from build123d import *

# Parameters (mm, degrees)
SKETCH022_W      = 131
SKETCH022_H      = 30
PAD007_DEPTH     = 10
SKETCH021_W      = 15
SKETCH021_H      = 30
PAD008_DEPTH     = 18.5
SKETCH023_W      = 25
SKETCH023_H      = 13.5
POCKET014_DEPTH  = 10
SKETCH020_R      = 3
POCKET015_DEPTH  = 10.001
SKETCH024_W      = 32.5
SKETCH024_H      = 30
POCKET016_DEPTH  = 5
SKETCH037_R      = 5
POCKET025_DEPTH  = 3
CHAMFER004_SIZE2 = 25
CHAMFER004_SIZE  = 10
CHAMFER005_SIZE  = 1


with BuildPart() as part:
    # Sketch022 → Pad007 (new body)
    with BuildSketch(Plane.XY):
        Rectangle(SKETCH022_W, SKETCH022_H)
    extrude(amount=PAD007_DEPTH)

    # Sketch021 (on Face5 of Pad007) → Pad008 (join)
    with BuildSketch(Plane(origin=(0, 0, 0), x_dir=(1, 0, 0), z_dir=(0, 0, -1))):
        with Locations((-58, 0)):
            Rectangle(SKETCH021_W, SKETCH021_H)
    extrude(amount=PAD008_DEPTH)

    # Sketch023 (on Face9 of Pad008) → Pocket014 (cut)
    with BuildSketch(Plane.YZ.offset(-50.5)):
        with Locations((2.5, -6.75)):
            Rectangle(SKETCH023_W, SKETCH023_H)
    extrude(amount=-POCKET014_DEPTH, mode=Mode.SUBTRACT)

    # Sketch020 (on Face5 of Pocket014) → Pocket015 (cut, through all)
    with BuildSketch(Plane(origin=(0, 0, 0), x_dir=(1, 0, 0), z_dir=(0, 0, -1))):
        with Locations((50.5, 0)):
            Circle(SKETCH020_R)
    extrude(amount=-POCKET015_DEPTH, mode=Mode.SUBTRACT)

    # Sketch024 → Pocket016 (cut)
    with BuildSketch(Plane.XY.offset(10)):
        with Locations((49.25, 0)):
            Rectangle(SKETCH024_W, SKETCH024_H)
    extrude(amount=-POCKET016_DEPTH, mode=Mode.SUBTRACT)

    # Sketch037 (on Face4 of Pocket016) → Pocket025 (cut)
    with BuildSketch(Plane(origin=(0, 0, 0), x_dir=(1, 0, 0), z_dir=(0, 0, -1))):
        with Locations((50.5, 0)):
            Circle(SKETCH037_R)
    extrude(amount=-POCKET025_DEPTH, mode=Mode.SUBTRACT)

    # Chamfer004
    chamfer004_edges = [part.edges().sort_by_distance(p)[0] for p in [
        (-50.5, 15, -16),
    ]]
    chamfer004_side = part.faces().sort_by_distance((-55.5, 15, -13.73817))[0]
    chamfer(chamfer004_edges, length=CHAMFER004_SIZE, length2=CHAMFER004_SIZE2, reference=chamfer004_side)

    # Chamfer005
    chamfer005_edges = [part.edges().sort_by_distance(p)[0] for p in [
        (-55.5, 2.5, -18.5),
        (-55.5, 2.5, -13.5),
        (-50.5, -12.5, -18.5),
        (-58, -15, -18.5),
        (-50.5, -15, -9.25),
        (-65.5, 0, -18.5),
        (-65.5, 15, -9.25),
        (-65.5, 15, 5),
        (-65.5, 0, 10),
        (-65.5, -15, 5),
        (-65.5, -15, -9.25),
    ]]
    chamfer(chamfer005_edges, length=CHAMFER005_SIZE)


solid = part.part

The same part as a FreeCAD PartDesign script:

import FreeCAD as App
import Part
import Sketcher

V = App.Vector


def edges_at(feature, points):
    """Names of the edges that pass closest to the given points."""
    edges = feature.Shape.Edges
    near = lambda p: min(range(len(edges)), key=lambda i: edges[i].distToShape(Part.Vertex(*p))[0])
    return sorted({f"Edge{near(p) + 1}" for p in points})

doc = App.newDocument("Part")
body = doc.addObject("PartDesign::Body", "Body")

# Sketch on XY plane
sketch1 = body.newObject("Sketcher::SketchObject", "Sketch")
sketch1.AttachmentSupport = (doc.getObject("XY_Plane"), [""])
sketch1.MapMode = "FlatFace"
sketch1.addGeometry(Part.LineSegment(V(-66, 15, 0), V(-66, -15, 0)), False)
sketch1.addGeometry(Part.LineSegment(V(-66, -15, 0), V(66, -15, 0)), False)
sketch1.addGeometry(Part.LineSegment(V(66, -15, 0), V(66, 15, 0)), False)
sketch1.addGeometry(Part.LineSegment(V(66, 15, 0), V(-66, 15, 0)), False)
sketch1.addConstraint(Sketcher.Constraint("Coincident", 0, 2, 1, 1))
sketch1.addConstraint(Sketcher.Constraint("Coincident", 1, 2, 2, 1))
sketch1.addConstraint(Sketcher.Constraint("Coincident", 2, 2, 3, 1))
sketch1.addConstraint(Sketcher.Constraint("Coincident", 3, 2, 0, 1))
sketch1.addConstraint(Sketcher.Constraint("Vertical", 0))
sketch1.addConstraint(Sketcher.Constraint("Horizontal", 1))
sketch1.addConstraint(Sketcher.Constraint("Vertical", 2))
sketch1.addConstraint(Sketcher.Constraint("Horizontal", 3))
sketch1.addConstraint(Sketcher.Constraint("Symmetric", 0, 2, 2, 2, -1, 1))
sketch1.addConstraint(Sketcher.Constraint("DistanceX", 1, 1, 1, 2, 131.0))
sketch1.addConstraint(Sketcher.Constraint("DistanceY", 0, 2, 0, 1, 30.0))
pad1 = body.newObject("PartDesign::Pad", "Pad")
pad1.Profile = sketch1
pad1.Length = 10

# Sketch on XY plane
sketch2 = body.newObject("Sketcher::SketchObject", "Sketch001")
sketch2.AttachmentSupport = (doc.getObject("XY_Plane"), [""])
sketch2.MapMode = "FlatFace"
sketch2.addGeometry(Part.LineSegment(V(-66, -15, 0), V(-66, 15, 0)), False)
sketch2.addGeometry(Part.LineSegment(V(-66, 15, 0), V(-50, 15, 0)), False)
sketch2.addGeometry(Part.LineSegment(V(-50, 15, 0), V(-50, -15, 0)), False)
sketch2.addGeometry(Part.LineSegment(V(-50, -15, 0), V(-66, -15, 0)), False)
sketch2.addConstraint(Sketcher.Constraint("Coincident", 0, 2, 1, 1))
sketch2.addConstraint(Sketcher.Constraint("Coincident", 1, 2, 2, 1))
sketch2.addConstraint(Sketcher.Constraint("Coincident", 2, 2, 3, 1))
sketch2.addConstraint(Sketcher.Constraint("Coincident", 3, 2, 0, 1))
sketch2.addConstraint(Sketcher.Constraint("Vertical", 0))
sketch2.addConstraint(Sketcher.Constraint("Horizontal", 1))
sketch2.addConstraint(Sketcher.Constraint("Vertical", 2))
sketch2.addConstraint(Sketcher.Constraint("Horizontal", 3))
sketch2.addConstraint(Sketcher.Constraint("DistanceX", 1, 1, 1, 2, 15.0))
sketch2.addConstraint(Sketcher.Constraint("DistanceY", 0, 1, 0, 2, 30.0))
sketch2.addConstraint(Sketcher.Constraint("DistanceY", -1, 1, 0, 2, 15.0))
sketch2.addConstraint(Sketcher.Constraint("DistanceX", 0, 2, -1, 1, 65.5))
pad2 = body.newObject("PartDesign::Pad", "Pad001")
pad2.Profile = sketch2
pad2.Length = 18.5
pad2.Reversed = True

# Sketch on YZ plane
sketch3 = body.newObject("Sketcher::SketchObject", "Sketch002")
sketch3.AttachmentSupport = (doc.getObject("YZ_Plane"), [""])
sketch3.MapMode = "FlatFace"
sketch3.AttachmentOffset = App.Placement(V(0, 0, -50.5), App.Rotation())
sketch3.addGeometry(Part.LineSegment(V(-10, 0, 0), V(-10, -14, 0)), False)
sketch3.addGeometry(Part.LineSegment(V(-10, -14, 0), V(15, -14, 0)), False)
sketch3.addGeometry(Part.LineSegment(V(15, -14, 0), V(15, 0, 0)), False)
sketch3.addGeometry(Part.LineSegment(V(15, 0, 0), V(-10, 0, 0)), False)
sketch3.addConstraint(Sketcher.Constraint("Coincident", 0, 2, 1, 1))
sketch3.addConstraint(Sketcher.Constraint("Coincident", 1, 2, 2, 1))
sketch3.addConstraint(Sketcher.Constraint("Coincident", 2, 2, 3, 1))
sketch3.addConstraint(Sketcher.Constraint("Coincident", 3, 2, 0, 1))
sketch3.addConstraint(Sketcher.Constraint("Vertical", 0))
sketch3.addConstraint(Sketcher.Constraint("Horizontal", 1))
sketch3.addConstraint(Sketcher.Constraint("Vertical", 2))
sketch3.addConstraint(Sketcher.Constraint("Horizontal", 3))
sketch3.addConstraint(Sketcher.Constraint("PointOnObject", 2, 2, -1))
sketch3.addConstraint(Sketcher.Constraint("DistanceX", 1, 1, 1, 2, 25.0))
sketch3.addConstraint(Sketcher.Constraint("DistanceY", 0, 2, 0, 1, 13.5))
sketch3.addConstraint(Sketcher.Constraint("DistanceX", 0, 2, -1, 1, 10.0))
pocket1 = body.newObject("PartDesign::Pocket", "Pocket")
pocket1.Profile = sketch3
pocket1.Length = 10

# Sketch on XY plane
sketch4 = body.newObject("Sketcher::SketchObject", "Sketch003")
sketch4.AttachmentSupport = (doc.getObject("XY_Plane"), [""])
sketch4.MapMode = "FlatFace"
sketch4.addGeometry(Part.Circle(V(50.5, 0, 0), V(0, 0, 1), 3), False)
sketch4.addConstraint(Sketcher.Constraint("PointOnObject", 0, 3, -1))
sketch4.addConstraint(Sketcher.Constraint("Diameter", 0, 6.0))
sketch4.addConstraint(Sketcher.Constraint("DistanceX", -1, 1, 0, 3, 50.5))
pocket2 = body.newObject("PartDesign::Pocket", "Pocket001")
pocket2.Profile = sketch4
pocket2.Type = "ThroughAll"
pocket2.Reversed = True

# Sketch on XY plane
sketch5 = body.newObject("Sketcher::SketchObject", "Sketch004")
sketch5.AttachmentSupport = (doc.getObject("XY_Plane"), [""])
sketch5.MapMode = "FlatFace"
sketch5.AttachmentOffset = App.Placement(V(0, 0, 10), App.Rotation())
sketch5.addGeometry(Part.LineSegment(V(33, 15, 0), V(33, -15, 0)), False)
sketch5.addGeometry(Part.LineSegment(V(33, -15, 0), V(66, -15, 0)), False)
sketch5.addGeometry(Part.LineSegment(V(66, -15, 0), V(66, 15, 0)), False)
sketch5.addGeometry(Part.LineSegment(V(66, 15, 0), V(33, 15, 0)), False)
sketch5.addConstraint(Sketcher.Constraint("Coincident", 0, 2, 1, 1))
sketch5.addConstraint(Sketcher.Constraint("Coincident", 1, 2, 2, 1))
sketch5.addConstraint(Sketcher.Constraint("Coincident", 2, 2, 3, 1))
sketch5.addConstraint(Sketcher.Constraint("Coincident", 3, 2, 0, 1))
sketch5.addConstraint(Sketcher.Constraint("Vertical", 0))
sketch5.addConstraint(Sketcher.Constraint("Horizontal", 1))
sketch5.addConstraint(Sketcher.Constraint("Vertical", 2))
sketch5.addConstraint(Sketcher.Constraint("Horizontal", 3))
sketch5.addConstraint(Sketcher.Constraint("DistanceY", 0, 2, 0, 1, 30.0))
sketch5.addConstraint(Sketcher.Constraint("DistanceX", 1, 1, 1, 2, 32.5))
sketch5.addConstraint(Sketcher.Constraint("DistanceX", -1, 1, 0, 2, 33.0))
sketch5.addConstraint(Sketcher.Constraint("DistanceY", 0, 2, -1, 1, 15.0))
pocket3 = body.newObject("PartDesign::Pocket", "Pocket002")
pocket3.Profile = sketch5
pocket3.Length = 5

# Sketch on XY plane
sketch6 = body.newObject("Sketcher::SketchObject", "Sketch005")
sketch6.AttachmentSupport = (doc.getObject("XY_Plane"), [""])
sketch6.MapMode = "FlatFace"
sketch6.addGeometry(Part.Circle(V(50, 0, 0), V(0, 0, 1), 5), False)
sketch6.addConstraint(Sketcher.Constraint("PointOnObject", 0, 3, -1))
sketch6.addConstraint(Sketcher.Constraint("Diameter", 0, 10.0))
sketch6.addConstraint(Sketcher.Constraint("DistanceX", -1, 1, 0, 3, 50.5))
pocket4 = body.newObject("PartDesign::Pocket", "Pocket003")
pocket4.Profile = sketch6
pocket4.Length = 3
pocket4.Reversed = True
doc.recompute()

chamfer = body.newObject("PartDesign::Chamfer", "Chamfer")
chamfer.Base = (pocket4, edges_at(pocket4, [(-50.5, 15, -16)]))
chamfer.ChamferType = "Two distances"
chamfer.Size = 10
chamfer.Size2 = 25
doc.recompute()

chamfer2 = body.newObject("PartDesign::Chamfer", "Chamfer001")
chamfer2.Base = (chamfer, edges_at(chamfer, [
    (-55.5, 2.5, -18.5),
    (-55.5, 2.5, -13.5),
    (-50.5, -12.5, -18.5),
    (-58, -15, -18.5),
    (-50.5, -15, -9.25),
    (-65.5, 0, -18.5),
    (-65.5, 15, -4.25),
    (-65.5, 15, -4.25),
    (-65.5, 0, 10),
    (-65.5, -15, -4.25),
    (-65.5, -15, -4.25),
]))
chamfer2.Size = 1

doc.recompute()
